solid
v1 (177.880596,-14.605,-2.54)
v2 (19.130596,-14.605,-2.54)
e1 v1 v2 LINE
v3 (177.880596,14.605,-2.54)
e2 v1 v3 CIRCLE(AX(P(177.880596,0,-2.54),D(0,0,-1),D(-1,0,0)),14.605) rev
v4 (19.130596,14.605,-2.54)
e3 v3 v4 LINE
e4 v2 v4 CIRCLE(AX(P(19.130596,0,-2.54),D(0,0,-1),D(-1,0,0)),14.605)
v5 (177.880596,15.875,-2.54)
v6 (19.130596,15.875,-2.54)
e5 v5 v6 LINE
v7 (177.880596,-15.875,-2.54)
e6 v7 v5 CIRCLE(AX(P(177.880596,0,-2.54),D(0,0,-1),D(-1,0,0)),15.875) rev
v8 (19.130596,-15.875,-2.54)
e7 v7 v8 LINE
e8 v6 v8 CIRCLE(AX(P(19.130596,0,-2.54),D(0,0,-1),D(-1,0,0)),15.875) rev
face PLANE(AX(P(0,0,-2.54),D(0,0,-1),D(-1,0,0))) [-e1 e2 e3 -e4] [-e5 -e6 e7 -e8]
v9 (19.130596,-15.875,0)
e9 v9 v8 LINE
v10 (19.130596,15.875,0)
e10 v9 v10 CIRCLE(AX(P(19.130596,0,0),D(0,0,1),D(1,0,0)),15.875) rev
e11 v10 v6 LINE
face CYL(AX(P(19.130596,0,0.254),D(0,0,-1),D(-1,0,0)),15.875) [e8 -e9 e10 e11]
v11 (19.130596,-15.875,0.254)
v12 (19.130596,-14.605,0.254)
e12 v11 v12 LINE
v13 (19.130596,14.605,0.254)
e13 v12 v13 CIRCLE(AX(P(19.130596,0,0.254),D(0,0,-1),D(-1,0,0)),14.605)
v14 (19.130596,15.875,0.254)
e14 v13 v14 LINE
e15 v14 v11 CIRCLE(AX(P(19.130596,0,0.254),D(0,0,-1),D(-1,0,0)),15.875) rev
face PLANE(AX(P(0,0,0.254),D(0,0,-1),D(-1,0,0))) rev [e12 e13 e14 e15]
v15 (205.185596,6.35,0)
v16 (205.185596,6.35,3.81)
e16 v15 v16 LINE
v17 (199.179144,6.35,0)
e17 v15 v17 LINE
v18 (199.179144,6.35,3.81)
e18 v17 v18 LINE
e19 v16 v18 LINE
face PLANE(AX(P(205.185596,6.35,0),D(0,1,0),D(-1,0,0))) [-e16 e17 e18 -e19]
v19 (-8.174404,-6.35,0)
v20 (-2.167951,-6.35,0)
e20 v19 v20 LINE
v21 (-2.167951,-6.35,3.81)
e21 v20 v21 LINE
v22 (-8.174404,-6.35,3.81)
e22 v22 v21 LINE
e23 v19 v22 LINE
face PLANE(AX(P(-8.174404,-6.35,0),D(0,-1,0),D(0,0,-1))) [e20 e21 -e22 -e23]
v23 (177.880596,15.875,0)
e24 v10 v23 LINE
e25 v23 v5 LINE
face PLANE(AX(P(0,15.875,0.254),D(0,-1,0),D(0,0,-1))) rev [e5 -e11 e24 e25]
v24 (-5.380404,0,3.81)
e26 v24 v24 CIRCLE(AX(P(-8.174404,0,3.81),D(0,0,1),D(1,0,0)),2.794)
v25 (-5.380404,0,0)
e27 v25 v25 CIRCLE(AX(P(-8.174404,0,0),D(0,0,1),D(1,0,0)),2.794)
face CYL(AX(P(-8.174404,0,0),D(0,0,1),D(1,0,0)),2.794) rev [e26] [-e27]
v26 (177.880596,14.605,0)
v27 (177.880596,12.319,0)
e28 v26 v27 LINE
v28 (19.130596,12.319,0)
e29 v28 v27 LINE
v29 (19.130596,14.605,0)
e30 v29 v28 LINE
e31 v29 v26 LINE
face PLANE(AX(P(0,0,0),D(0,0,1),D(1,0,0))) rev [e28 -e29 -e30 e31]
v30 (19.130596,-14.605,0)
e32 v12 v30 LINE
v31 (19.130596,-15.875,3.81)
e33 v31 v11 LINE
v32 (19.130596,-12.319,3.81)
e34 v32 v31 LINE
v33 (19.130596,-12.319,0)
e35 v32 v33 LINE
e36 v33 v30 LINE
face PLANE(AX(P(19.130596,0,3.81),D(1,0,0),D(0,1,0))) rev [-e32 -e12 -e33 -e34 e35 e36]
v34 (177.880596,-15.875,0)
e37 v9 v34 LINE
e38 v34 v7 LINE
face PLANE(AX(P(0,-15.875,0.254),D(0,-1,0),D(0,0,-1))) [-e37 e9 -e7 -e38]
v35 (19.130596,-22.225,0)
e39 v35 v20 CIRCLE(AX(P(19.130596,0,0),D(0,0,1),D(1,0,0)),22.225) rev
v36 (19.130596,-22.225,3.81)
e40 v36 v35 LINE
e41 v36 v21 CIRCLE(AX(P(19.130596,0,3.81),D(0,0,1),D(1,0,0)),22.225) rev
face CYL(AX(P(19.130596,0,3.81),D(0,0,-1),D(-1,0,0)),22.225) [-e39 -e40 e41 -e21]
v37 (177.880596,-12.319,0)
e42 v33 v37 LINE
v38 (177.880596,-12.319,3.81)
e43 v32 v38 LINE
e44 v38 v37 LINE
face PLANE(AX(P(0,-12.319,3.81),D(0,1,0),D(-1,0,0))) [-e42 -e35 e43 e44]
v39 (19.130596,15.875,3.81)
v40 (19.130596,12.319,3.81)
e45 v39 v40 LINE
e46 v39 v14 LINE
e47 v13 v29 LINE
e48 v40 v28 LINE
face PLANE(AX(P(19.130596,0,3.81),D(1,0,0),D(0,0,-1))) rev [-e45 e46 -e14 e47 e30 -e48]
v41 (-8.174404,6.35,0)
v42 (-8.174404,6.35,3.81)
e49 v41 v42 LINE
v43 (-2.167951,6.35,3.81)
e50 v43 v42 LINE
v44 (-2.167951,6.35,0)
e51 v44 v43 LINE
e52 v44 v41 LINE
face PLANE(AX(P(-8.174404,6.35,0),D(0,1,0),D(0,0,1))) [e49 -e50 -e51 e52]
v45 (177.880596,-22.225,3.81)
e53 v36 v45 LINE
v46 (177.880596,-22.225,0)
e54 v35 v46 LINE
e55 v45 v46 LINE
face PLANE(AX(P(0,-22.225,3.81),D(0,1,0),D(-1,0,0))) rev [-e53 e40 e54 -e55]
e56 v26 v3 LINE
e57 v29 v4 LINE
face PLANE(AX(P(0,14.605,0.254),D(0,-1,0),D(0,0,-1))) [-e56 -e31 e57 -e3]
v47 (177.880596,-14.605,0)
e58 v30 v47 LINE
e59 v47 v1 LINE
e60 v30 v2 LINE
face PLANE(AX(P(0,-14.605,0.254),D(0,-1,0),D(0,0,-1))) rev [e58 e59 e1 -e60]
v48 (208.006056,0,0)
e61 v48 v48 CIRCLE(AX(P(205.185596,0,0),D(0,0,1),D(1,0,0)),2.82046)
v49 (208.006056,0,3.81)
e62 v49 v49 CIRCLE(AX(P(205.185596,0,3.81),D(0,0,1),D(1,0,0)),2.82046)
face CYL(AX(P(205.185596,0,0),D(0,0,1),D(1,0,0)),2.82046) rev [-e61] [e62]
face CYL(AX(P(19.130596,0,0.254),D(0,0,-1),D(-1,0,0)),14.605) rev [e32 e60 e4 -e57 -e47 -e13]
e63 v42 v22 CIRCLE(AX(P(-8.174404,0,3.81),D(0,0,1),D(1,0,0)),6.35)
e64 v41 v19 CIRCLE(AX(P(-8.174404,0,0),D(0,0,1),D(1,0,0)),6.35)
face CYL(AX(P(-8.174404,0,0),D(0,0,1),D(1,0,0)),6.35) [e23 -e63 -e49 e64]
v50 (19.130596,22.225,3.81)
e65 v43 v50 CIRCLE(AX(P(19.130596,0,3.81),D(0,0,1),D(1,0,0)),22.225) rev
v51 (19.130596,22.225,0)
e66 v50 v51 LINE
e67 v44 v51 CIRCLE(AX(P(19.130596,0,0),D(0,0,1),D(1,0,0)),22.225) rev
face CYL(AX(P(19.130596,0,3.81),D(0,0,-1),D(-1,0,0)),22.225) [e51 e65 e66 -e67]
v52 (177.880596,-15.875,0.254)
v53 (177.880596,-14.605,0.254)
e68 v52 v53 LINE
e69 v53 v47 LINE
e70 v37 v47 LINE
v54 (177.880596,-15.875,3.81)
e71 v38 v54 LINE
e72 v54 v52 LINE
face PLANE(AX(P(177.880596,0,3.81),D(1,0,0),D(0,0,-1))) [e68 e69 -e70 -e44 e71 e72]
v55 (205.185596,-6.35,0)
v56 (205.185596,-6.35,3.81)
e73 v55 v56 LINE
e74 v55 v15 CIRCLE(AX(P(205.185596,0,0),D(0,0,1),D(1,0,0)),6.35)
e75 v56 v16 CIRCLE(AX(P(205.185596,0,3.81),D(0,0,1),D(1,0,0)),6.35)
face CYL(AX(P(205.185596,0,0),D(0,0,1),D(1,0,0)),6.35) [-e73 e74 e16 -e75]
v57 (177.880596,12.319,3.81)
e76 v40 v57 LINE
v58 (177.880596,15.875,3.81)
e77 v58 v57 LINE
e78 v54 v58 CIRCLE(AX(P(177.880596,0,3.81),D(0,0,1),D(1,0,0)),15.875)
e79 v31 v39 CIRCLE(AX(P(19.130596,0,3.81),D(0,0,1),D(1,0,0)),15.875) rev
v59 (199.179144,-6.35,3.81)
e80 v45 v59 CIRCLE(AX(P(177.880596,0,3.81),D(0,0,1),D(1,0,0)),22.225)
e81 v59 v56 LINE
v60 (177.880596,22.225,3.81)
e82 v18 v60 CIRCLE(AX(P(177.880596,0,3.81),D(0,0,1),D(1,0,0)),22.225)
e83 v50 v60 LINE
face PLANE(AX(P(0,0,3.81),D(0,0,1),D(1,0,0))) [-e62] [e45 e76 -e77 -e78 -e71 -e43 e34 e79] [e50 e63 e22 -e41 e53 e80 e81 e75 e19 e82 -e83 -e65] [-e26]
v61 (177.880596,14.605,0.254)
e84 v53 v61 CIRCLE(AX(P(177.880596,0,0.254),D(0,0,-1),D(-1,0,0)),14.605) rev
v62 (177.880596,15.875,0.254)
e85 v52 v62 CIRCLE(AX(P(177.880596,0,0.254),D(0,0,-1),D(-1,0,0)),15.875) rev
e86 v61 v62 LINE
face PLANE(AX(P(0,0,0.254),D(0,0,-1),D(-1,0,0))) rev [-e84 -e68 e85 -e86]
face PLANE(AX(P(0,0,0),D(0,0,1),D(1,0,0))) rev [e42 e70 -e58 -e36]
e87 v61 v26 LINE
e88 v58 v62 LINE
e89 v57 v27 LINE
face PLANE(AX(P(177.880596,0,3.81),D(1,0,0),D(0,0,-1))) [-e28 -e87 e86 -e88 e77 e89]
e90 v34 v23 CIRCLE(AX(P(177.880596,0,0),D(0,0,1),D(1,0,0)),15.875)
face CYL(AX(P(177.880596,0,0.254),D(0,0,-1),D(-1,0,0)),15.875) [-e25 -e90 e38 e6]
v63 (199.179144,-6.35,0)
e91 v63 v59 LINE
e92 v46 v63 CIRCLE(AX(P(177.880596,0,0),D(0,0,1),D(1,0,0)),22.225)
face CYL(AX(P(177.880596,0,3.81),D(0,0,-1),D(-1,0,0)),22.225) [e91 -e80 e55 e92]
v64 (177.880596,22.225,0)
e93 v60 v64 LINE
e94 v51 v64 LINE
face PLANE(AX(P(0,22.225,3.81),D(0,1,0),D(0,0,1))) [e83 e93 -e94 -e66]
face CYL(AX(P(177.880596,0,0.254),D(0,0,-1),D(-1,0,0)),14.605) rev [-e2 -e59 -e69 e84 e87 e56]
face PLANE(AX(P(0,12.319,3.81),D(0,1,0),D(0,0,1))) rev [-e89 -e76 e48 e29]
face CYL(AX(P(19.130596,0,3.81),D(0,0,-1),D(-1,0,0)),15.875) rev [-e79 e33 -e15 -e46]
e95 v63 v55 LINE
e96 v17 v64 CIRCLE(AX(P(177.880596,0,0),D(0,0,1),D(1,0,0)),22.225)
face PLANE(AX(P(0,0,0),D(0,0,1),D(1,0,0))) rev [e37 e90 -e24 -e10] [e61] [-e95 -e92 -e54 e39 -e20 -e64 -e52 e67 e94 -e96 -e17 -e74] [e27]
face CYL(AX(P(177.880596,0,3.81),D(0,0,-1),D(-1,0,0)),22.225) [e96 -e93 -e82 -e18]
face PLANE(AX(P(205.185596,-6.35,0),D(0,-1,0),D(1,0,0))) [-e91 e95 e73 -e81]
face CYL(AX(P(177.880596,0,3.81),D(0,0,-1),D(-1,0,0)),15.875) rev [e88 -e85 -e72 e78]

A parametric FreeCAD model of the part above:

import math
import FreeCAD as App
import Part
import Sketcher
Q = App.Units.Quantity

doc = App.newDocument("Part")
params = doc.addObject("Spreadsheet::Sheet", "Params")
for row, (alias, value) in enumerate([
    ("sketch1_radius", "0.875 in"),
    ("sketch1_radius2", "0.625 in"),
    ("sketch1_width", "6.25 in"),
    ("sketch1_height", "0.14 in"),
    ("pad1_length", "0.15 in"),
    ("sketch2_radius", "0.625 in"),
    ("sketch2_radius2", "0.575 in"),
    ("sketch2_width", "6.25 in"),
    ("pad2_length", "0.1 in"),
    ("pad2_length2", "0.01 in"),
    ("sketch3_diameter", "0.22 in"),
    ("sketch3_radius", "0.25 in"),
    ("sketch3_radius2", "0.875 in"),
    ("pad3_length", "0.15 in"),
], start=1):
    params.set(f"A{row}", alias)
    params.set(f"B{row}", "=" + value)
    params.setAlias(f"B{row}", alias)

body = doc.addObject("PartDesign::Body", "Body")

sketch1 = doc.addObject("Sketcher::SketchObject", "Sketch")
body.addObject(sketch1)
sketch1.AttachmentSupport = (doc.XY_Plane, [""])
sketch1.MapMode = "FlatFace"
sketch1.addGeometry([
    Part.LineSegment(App.Vector(19.1, -22.2, 0), App.Vector(177.9, -22.2, 0)),
    Part.ArcOfCircle(Part.Circle(App.Vector(177.9, 0, 0), App.Vector(0, 0, 1), 22.2), math.radians(-90), math.radians(90)),
    Part.LineSegment(App.Vector(177.9, 22.2, 0), App.Vector(19.1, 22.2, 0)),
    Part.ArcOfCircle(Part.Circle(App.Vector(19.1, 0, 0), App.Vector(0, 0, 1), 22.2), math.radians(90), math.radians(270)),
    Part.LineSegment(App.Vector(177.9, -12.3, 0), App.Vector(19.1, -12.3, 0)),
    Part.LineSegment(App.Vector(19.1, -12.3, 0), App.Vector(19.1, -15.9, 0)),
    Part.ArcOfCircle(Part.Circle(App.Vector(19.1, 0, 0), App.Vector(0, 0, 1), 15.9), math.radians(90), math.radians(270)),
    Part.LineSegment(App.Vector(19.1, 15.9, 0), App.Vector(19.1, 12.3, 0)),
    Part.LineSegment(App.Vector(19.1, 12.3, 0), App.Vector(177.9, 12.3, 0)),
    Part.LineSegment(App.Vector(177.9, 12.3, 0), App.Vector(177.9, 15.9, 0)),
    Part.ArcOfCircle(Part.Circle(App.Vector(177.9, 0, 0), App.Vector(0, 0, 1), 15.9), math.radians(-90), math.radians(90)),
    Part.LineSegment(App.Vector(177.9, -15.9, 0), App.Vector(177.9, -12.3, 0)),
], False)
sketch1.addConstraint([
    Sketcher.Constraint("Tangent", 0, 2, 1, 1),
    Sketcher.Constraint("Tangent", 1, 2, 2, 1),
    Sketcher.Constraint("Tangent", 2, 2, 3, 1),
    Sketcher.Constraint("Tangent", 3, 2, 0, 1),
    Sketcher.Constraint("Coincident", 4, 2, 5, 1),
    Sketcher.Constraint("Coincident", 5, 2, 6, 2),
    Sketcher.Constraint("Coincident", 6, 1, 7, 1),
    Sketcher.Constraint("Coincident", 7, 2, 8, 1),
    Sketcher.Constraint("Coincident", 8, 2, 9, 1),
    Sketcher.Constraint("Coincident", 9, 2, 10, 2),
    Sketcher.Constraint("Coincident", 10, 1, 11, 1),
    Sketcher.Constraint("Coincident", 11, 2, 4, 1),
    Sketcher.Constraint("Horizontal", 0),
    Sketcher.Constraint("Horizontal", 2),
    Sketcher.Constraint("Horizontal", 4),
    Sketcher.Constraint("Vertical", 5),
    Sketcher.Constraint("Vertical", 7),
    Sketcher.Constraint("Horizontal", 8),
    Sketcher.Constraint("Vertical", 9),
    Sketcher.Constraint("Vertical", 11),
    Sketcher.Constraint("Coincident", 6, 3, 3, 3),
    Sketcher.Constraint("Coincident", 10, 3, 1, 3),
    Sketcher.Constraint("Equal", 6, 10),
    Sketcher.Constraint("Symmetric", 5, 2, 6, 1, -1),
    Sketcher.Constraint("Symmetric", 8, 2, 11, 2, -1),
    Sketcher.Constraint("Vertical", 3, 2, 4, 2),
    Sketcher.Constraint("Vertical", 1, 2, 8, 2),
    Sketcher.Constraint("Radius", 1, Q("0.875 in")),
    Sketcher.Constraint("Radius", 6, Q("0.625 in")),
    Sketcher.Constraint("DistanceX", 0, 1, 0, 2, Q("6.25 in")),
    Sketcher.Constraint("DistanceY", 5, 2, 5, 1, Q("0.14 in")),
    Sketcher.Constraint("DistanceX", -1, 1, 1, 3, 177.880596),
])
sketch1.setExpression("Constraints[27]", "Params.sketch1_radius")
sketch1.setExpression("Constraints[28]", "Params.sketch1_radius2")
sketch1.setExpression("Constraints[29]", "Params.sketch1_width")
sketch1.setExpression("Constraints[30]", "Params.sketch1_height")
pad1 = doc.addObject("PartDesign::Pad", "Pad")
body.addObject(pad1)
pad1.Profile = sketch1
pad1.setExpression("Length", "Params.pad1_length")

sketch2 = doc.addObject("Sketcher::SketchObject", "Sketch001")
body.addObject(sketch2)
sketch2.AttachmentSupport = (doc.XY_Plane, [""])
sketch2.MapMode = "FlatFace"
sketch2.addGeometry([
    Part.LineSegment(App.Vector(19, 16, 0), App.Vector(178, 16, 0)),
    Part.ArcOfCircle(Part.Circle(App.Vector(178, 0, 0), App.Vector(0, 0, 1), 16), math.radians(-90), math.radians(90)),
    Part.LineSegment(App.Vector(178, -16, 0), App.Vector(19, -16, 0)),
    Part.ArcOfCircle(Part.Circle(App.Vector(19, 0, 0), App.Vector(0, 0, 1), 16), math.radians(90), math.radians(270)),
    Part.ArcOfCircle(Part.Circle(App.Vector(178, 0, 0), App.Vector(0, 0, 1), 15), math.radians(-90), math.radians(90)),
    Part.LineSegment(App.Vector(178, 15, 0), App.Vector(19, 15, 0)),
    Part.ArcOfCircle(Part.Circle(App.Vector(19, 0, 0), App.Vector(0, 0, 1), 15), math.radians(90), math.radians(270)),
    Part.LineSegment(App.Vector(19, -15, 0), App.Vector(178, -15, 0)),
], False)
sketch2.addConstraint([
    Sketcher.Constraint("Tangent", 0, 2, 1, 2),
    Sketcher.Constraint("Tangent", 1, 1, 2, 1),
    Sketcher.Constraint("Tangent", 2, 2, 3, 2),
    Sketcher.Constraint("Tangent", 3, 1, 0, 1),
    Sketcher.Constraint("Tangent", 4, 2, 5, 1),
    Sketcher.Constraint("Tangent", 5, 2, 6, 1),
    Sketcher.Constraint("Tangent", 6, 2, 7, 1),
    Sketcher.Constraint("Tangent", 7, 2, 4, 1),
    Sketcher.Constraint("Horizontal", 0),
    Sketcher.Constraint("Horizontal", 2),
    Sketcher.Constraint("Horizontal", 5),
    Sketcher.Constraint("Horizontal", 7),
    Sketcher.Constraint("Coincident", 4, 3, 1, 3),
    Sketcher.Constraint("PointOnObject", 1, 3, -1),
    Sketcher.Constraint("Vertical", 6, 3, 2, 2),
    Sketcher.Constraint("Radius", 1, Q("0.625 in")),
    Sketcher.Constraint("Radius", 4, Q("0.575 in")),
    Sketcher.Constraint("DistanceX", 0, 1, 0, 2, Q("6.25 in")),
    Sketcher.Constraint("DistanceX", -1, 1, 1, 3, 177.880596),
])
sketch2.setExpression("Constraints[15]", "Params.sketch2_radius")
sketch2.setExpression("Constraints[16]", "Params.sketch2_radius2")
sketch2.setExpression("Constraints[17]", "Params.sketch2_width")
pad2 = doc.addObject("PartDesign::Pad", "Pad001")
body.addObject(pad2)
pad2.Profile = sketch2
pad2.Type = "TwoLengths"
pad2.setExpression("Length", "Params.pad2_length")
pad2.setExpression("Length2", "Params.pad2_length2")
pad2.Reversed = True

sketch3 = doc.addObject("Sketcher::SketchObject", "Sketch002")
body.addObject(sketch3)
sketch3.AttachmentSupport = (doc.XY_Plane, [""])
sketch3.MapMode = "FlatFace"
sketch3.AttachmentOffset = App.Placement(App.Vector(0, 0, 0.15 * 25.4), App.Rotation())
sketch3.addGeometry([
    Part.LineSegment(App.Vector(-2.2, 6.3, 0), App.Vector(-8.2, 6.3, 0)),
    Part.ArcOfCircle(Part.Circle(App.Vector(-8.2, 0, 0), App.Vector(0, 0, 1), 6.3), math.radians(90), math.radians(270)),
    Part.LineSegment(App.Vector(-8.2, -6.3, 0), App.Vector(-2.2, -6.3, 0)),
    Part.ArcOfCircle(Part.Circle(App.Vector(19.1, 0, 0), App.Vector(0, 0, 1), 22.2), math.radians(163), math.radians(197)),
    Part.Circle(App.Vector(-8.2, 0, 0), App.Vector(0, 0, 1), 2.8),
    Part.LineSegment(App.Vector(199.2, -6.3, 0), App.Vector(205.2, -6.3, 0)),
    Part.ArcOfCircle(Part.Circle(App.Vector(205.2, 0, 0), App.Vector(0, 0, 1), 6.3), math.radians(-90), math.radians(90)),
    Part.LineSegment(App.Vector(205.2, 6.3, 0), App.Vector(199.2, 6.3, 0)),
    Part.ArcOfCircle(Part.Circle(App.Vector(177.9, 0, 0), App.Vector(0, 0, 1), 22.2), math.radians(-17), math.radians(17)),
    Part.Circle(App.Vector(205.2, 0, 0), App.Vector(0, 0, 1), 2.8),
], False)
sketch3.addConstraint([
    Sketcher.Constraint("Tangent", 0, 2, 1, 1),
    Sketcher.Constraint("Tangent", 1, 2, 2, 1),
    Sketcher.Constraint("Coincident", 2, 2, 3, 2),
    Sketcher.Constraint("Coincident", 3, 1, 0, 1),
    Sketcher.Constraint("Tangent", 5, 2, 6, 1),
    Sketcher.Constraint("Tangent", 6, 2, 7, 1),
    Sketcher.Constraint("Coincident", 7, 2, 8, 2),
    Sketcher.Constraint("Coincident", 8, 1, 5, 1),
    Sketcher.Constraint("Horizontal", 0),
    Sketcher.Constraint("Horizontal", 2),
    Sketcher.Constraint("Horizontal", 5),
    Sketcher.Constraint("Horizontal", 7),
    Sketcher.Constraint("Coincident", 4, 3, 1, 3),
    Sketcher.Constraint("Coincident", 9, 3, 6, 3),
    Sketcher.Constraint("Equal", 1, 6),
    Sketcher.Constraint("Equal", 3, 8),
    Sketcher.Constraint("Symmetric", 2, 2, 3, 1, -1),
    Sketcher.Constraint("Symmetric", 7, 2, 8, 1, -1),
    Sketcher.Constraint("Equal", 2, 5),
    Sketcher.Constraint("Diameter", 4, Q("0.22 in")),
    Sketcher.Constraint("Radius", 1, Q("0.25 in")),
    Sketcher.Constraint("Radius", 3, Q("0.875 in")),
    Sketcher.Constraint("DistanceX", 1, 3, 6, 3, Q("8.4 in")),
    Sketcher.Constraint("DistanceX", 3, 3, 8, 3, Q("6.25 in")),
    Sketcher.Constraint("Diameter", 9, 5.640919),
    Sketcher.Constraint("DistanceX", 2, 2, -1, 1, 2.167951),
])
sketch3.setExpression("Constraints[19]", "Params.sketch3_diameter")
sketch3.setExpression("Constraints[20]", "Params.sketch3_radius")
sketch3.setExpression("Constraints[21]", "Params.sketch3_radius2")
pad3 = doc.addObject("PartDesign::Pad", "Pad002")
body.addObject(pad3)
pad3.Profile = sketch3
pad3.setExpression("Length", "Params.pad3_length")
pad3.Reversed = True

doc.recompute()
